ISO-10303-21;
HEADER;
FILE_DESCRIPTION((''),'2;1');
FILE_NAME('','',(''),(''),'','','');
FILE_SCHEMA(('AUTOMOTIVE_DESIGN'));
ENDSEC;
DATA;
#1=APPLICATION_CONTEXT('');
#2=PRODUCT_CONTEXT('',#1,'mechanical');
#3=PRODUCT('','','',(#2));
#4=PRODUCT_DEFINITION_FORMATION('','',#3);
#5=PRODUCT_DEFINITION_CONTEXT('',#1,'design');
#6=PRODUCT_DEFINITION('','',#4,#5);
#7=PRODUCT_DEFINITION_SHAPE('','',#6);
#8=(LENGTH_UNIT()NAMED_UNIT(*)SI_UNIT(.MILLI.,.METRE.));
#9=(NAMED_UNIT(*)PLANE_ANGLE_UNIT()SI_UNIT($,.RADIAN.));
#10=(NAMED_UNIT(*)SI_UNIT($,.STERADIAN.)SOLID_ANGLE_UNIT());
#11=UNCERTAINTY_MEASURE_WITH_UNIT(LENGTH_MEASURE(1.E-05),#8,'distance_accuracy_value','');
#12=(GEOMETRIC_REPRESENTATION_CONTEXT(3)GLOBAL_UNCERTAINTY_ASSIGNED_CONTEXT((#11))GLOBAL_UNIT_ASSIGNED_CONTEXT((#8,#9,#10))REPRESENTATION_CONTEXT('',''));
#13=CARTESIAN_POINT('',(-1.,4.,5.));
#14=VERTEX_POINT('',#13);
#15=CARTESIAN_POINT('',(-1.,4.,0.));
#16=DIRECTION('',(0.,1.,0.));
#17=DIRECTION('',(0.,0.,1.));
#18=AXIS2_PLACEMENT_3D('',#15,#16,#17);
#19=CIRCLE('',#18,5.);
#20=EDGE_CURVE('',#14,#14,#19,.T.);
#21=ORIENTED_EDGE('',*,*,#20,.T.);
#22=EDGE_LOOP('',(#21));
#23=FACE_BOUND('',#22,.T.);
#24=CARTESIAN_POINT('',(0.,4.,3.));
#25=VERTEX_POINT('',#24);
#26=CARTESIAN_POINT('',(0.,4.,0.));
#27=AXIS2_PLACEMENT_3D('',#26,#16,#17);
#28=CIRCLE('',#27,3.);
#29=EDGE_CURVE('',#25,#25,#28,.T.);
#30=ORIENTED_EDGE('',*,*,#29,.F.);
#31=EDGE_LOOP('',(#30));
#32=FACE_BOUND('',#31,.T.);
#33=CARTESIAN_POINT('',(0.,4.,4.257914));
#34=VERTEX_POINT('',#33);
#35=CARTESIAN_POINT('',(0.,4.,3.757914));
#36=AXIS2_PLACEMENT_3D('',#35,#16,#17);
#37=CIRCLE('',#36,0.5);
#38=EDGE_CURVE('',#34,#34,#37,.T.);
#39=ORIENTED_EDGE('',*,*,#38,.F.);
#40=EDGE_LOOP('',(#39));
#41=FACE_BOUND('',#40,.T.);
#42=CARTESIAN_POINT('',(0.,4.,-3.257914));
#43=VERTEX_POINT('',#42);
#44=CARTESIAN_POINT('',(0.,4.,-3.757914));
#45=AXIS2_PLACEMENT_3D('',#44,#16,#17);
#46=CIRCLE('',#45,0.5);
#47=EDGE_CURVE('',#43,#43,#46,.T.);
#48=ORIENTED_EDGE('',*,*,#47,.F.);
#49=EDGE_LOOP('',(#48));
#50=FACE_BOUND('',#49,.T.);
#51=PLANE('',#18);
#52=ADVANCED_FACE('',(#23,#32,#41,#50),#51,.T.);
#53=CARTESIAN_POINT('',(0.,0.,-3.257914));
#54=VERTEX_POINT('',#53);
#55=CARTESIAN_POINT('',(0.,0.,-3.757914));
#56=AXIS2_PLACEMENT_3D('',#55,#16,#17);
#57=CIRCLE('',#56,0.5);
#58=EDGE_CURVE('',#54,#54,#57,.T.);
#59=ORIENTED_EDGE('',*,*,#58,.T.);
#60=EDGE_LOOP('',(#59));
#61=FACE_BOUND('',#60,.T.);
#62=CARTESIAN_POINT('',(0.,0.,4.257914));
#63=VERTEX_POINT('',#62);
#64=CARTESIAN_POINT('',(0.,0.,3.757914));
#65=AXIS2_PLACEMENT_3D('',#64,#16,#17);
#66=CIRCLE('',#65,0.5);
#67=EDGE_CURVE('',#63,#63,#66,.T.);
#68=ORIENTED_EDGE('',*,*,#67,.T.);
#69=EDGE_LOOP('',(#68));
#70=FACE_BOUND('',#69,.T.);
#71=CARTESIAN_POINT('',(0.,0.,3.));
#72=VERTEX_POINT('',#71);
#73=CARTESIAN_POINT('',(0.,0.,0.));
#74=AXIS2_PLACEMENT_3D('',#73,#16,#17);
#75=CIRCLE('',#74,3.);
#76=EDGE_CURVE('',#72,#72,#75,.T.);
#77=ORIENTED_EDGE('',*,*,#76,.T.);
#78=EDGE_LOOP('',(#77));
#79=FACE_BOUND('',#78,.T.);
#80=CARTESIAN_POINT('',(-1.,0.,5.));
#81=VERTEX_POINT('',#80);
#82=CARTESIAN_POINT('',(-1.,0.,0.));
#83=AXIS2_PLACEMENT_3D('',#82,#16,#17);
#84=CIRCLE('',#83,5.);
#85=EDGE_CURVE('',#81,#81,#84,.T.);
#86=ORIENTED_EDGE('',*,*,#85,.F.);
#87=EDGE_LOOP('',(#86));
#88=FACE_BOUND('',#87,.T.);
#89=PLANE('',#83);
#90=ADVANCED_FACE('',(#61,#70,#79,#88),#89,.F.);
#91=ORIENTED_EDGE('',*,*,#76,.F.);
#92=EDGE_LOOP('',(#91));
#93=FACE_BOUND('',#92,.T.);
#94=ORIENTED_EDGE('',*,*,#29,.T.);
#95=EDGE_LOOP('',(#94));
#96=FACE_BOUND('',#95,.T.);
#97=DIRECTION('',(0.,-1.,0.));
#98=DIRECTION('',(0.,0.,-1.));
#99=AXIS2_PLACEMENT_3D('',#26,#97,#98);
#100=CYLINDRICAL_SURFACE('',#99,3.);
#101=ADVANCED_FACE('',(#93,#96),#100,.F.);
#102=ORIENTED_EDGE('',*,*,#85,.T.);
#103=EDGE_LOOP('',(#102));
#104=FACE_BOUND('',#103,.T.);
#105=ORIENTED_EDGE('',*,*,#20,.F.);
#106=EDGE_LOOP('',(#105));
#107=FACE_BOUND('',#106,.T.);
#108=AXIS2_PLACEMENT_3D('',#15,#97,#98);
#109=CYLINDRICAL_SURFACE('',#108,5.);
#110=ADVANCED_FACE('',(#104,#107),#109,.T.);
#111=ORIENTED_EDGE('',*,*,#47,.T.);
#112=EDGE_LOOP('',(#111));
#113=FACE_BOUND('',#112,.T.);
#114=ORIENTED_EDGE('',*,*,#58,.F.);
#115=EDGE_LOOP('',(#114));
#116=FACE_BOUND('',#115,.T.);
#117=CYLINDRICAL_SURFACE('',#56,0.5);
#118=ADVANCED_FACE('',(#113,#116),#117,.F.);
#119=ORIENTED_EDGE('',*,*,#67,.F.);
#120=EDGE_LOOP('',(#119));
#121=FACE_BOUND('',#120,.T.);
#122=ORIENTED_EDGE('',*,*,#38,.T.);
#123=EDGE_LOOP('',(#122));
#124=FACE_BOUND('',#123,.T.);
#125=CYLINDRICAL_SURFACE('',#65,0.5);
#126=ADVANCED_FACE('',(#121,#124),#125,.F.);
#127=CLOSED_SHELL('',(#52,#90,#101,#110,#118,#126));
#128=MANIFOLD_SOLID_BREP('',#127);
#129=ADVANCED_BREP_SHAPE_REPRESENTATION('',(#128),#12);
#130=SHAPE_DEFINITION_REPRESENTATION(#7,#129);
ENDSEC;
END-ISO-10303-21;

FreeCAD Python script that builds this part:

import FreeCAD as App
import Part
import Sketcher

V = App.Vector

doc = App.newDocument("Part")
params = doc.addObject("Spreadsheet::Sheet", "Params")
for row, (alias, value) in enumerate([
    ("sketch1_diameter", "10 mm"),
    ("sketch1_diameter2", "6 mm"),
    ("pad1_length", "4 mm"),
    ("sketch2_diameter", "1 mm"),
], start=1):
    params.set(f"A{row}", alias)
    params.set(f"B{row}", "=" + value)
    params.setAlias(f"B{row}", alias)

body = doc.addObject("PartDesign::Body", "Body")

# Sketch on XZ plane
sketch1 = doc.addObject("Sketcher::SketchObject", "Sketch")
body.addObject(sketch1)
sketch1.AttachmentSupport = (doc.XZ_Plane, [""])
sketch1.MapMode = "FlatFace"
sketch1.addGeometry([
    Part.Circle(V(-1, 0, 0), V(0, 0, 1), 5),
    Part.Circle(V(0, 0, 0), V(0, 0, 1), 3),
], False)
sketch1.addConstraint([
    Sketcher.Constraint("Coincident", 1, 3, -1, 1),
    Sketcher.Constraint("PointOnObject", 0, 3, -1),
    Sketcher.Constraint("Diameter", 0, 10.0),
    Sketcher.Constraint("Diameter", 1, 6.0),
    Sketcher.Constraint("DistanceX", 0, 3, -1, 1, 1.0),
])
sketch1.setExpression("Constraints[2]", "Params.sketch1_diameter")
sketch1.setExpression("Constraints[3]", "Params.sketch1_diameter2")
pad1 = doc.addObject("PartDesign::Pad", "Pad")
body.addObject(pad1)
pad1.Profile = sketch1
pad1.setExpression("Length", "Params.pad1_length")
pad1.Reversed = True

# Sketch on XZ plane
sketch2 = doc.addObject("Sketcher::SketchObject", "Sketch001")
body.addObject(sketch2)
sketch2.AttachmentSupport = (doc.XZ_Plane, [""])
sketch2.MapMode = "FlatFace"
sketch2.AttachmentOffset = App.Placement(V(0, 0, -4), App.Rotation())
sketch2.addGeometry([
    Part.Circle(V(0, -3.8, 0), V(0, 0, 1), 0.5),
    Part.Circle(V(0, 3.8, 0), V(0, 0, 1), 0.5),
], False)
sketch2.addConstraint([
    Sketcher.Constraint("Equal", 0, 1),
    Sketcher.Constraint("Symmetric", 0, 3, 1, 3, -1, 1),
    Sketcher.Constraint("PointOnObject", 0, 3, -2),
    Sketcher.Constraint("Diameter", 0, 1.0),
    Sketcher.Constraint("DistanceY", 0, 3, -1, 1, 3.757914),
])
sketch2.setExpression("Constraints[3]", "Params.sketch2_diameter")
pocket1 = doc.addObject("PartDesign::Pocket", "Pocket")
body.addObject(pocket1)
pocket1.Profile = sketch2
pocket1.Type = "ThroughAll"
pocket1.Reversed = True

doc.recompute()
